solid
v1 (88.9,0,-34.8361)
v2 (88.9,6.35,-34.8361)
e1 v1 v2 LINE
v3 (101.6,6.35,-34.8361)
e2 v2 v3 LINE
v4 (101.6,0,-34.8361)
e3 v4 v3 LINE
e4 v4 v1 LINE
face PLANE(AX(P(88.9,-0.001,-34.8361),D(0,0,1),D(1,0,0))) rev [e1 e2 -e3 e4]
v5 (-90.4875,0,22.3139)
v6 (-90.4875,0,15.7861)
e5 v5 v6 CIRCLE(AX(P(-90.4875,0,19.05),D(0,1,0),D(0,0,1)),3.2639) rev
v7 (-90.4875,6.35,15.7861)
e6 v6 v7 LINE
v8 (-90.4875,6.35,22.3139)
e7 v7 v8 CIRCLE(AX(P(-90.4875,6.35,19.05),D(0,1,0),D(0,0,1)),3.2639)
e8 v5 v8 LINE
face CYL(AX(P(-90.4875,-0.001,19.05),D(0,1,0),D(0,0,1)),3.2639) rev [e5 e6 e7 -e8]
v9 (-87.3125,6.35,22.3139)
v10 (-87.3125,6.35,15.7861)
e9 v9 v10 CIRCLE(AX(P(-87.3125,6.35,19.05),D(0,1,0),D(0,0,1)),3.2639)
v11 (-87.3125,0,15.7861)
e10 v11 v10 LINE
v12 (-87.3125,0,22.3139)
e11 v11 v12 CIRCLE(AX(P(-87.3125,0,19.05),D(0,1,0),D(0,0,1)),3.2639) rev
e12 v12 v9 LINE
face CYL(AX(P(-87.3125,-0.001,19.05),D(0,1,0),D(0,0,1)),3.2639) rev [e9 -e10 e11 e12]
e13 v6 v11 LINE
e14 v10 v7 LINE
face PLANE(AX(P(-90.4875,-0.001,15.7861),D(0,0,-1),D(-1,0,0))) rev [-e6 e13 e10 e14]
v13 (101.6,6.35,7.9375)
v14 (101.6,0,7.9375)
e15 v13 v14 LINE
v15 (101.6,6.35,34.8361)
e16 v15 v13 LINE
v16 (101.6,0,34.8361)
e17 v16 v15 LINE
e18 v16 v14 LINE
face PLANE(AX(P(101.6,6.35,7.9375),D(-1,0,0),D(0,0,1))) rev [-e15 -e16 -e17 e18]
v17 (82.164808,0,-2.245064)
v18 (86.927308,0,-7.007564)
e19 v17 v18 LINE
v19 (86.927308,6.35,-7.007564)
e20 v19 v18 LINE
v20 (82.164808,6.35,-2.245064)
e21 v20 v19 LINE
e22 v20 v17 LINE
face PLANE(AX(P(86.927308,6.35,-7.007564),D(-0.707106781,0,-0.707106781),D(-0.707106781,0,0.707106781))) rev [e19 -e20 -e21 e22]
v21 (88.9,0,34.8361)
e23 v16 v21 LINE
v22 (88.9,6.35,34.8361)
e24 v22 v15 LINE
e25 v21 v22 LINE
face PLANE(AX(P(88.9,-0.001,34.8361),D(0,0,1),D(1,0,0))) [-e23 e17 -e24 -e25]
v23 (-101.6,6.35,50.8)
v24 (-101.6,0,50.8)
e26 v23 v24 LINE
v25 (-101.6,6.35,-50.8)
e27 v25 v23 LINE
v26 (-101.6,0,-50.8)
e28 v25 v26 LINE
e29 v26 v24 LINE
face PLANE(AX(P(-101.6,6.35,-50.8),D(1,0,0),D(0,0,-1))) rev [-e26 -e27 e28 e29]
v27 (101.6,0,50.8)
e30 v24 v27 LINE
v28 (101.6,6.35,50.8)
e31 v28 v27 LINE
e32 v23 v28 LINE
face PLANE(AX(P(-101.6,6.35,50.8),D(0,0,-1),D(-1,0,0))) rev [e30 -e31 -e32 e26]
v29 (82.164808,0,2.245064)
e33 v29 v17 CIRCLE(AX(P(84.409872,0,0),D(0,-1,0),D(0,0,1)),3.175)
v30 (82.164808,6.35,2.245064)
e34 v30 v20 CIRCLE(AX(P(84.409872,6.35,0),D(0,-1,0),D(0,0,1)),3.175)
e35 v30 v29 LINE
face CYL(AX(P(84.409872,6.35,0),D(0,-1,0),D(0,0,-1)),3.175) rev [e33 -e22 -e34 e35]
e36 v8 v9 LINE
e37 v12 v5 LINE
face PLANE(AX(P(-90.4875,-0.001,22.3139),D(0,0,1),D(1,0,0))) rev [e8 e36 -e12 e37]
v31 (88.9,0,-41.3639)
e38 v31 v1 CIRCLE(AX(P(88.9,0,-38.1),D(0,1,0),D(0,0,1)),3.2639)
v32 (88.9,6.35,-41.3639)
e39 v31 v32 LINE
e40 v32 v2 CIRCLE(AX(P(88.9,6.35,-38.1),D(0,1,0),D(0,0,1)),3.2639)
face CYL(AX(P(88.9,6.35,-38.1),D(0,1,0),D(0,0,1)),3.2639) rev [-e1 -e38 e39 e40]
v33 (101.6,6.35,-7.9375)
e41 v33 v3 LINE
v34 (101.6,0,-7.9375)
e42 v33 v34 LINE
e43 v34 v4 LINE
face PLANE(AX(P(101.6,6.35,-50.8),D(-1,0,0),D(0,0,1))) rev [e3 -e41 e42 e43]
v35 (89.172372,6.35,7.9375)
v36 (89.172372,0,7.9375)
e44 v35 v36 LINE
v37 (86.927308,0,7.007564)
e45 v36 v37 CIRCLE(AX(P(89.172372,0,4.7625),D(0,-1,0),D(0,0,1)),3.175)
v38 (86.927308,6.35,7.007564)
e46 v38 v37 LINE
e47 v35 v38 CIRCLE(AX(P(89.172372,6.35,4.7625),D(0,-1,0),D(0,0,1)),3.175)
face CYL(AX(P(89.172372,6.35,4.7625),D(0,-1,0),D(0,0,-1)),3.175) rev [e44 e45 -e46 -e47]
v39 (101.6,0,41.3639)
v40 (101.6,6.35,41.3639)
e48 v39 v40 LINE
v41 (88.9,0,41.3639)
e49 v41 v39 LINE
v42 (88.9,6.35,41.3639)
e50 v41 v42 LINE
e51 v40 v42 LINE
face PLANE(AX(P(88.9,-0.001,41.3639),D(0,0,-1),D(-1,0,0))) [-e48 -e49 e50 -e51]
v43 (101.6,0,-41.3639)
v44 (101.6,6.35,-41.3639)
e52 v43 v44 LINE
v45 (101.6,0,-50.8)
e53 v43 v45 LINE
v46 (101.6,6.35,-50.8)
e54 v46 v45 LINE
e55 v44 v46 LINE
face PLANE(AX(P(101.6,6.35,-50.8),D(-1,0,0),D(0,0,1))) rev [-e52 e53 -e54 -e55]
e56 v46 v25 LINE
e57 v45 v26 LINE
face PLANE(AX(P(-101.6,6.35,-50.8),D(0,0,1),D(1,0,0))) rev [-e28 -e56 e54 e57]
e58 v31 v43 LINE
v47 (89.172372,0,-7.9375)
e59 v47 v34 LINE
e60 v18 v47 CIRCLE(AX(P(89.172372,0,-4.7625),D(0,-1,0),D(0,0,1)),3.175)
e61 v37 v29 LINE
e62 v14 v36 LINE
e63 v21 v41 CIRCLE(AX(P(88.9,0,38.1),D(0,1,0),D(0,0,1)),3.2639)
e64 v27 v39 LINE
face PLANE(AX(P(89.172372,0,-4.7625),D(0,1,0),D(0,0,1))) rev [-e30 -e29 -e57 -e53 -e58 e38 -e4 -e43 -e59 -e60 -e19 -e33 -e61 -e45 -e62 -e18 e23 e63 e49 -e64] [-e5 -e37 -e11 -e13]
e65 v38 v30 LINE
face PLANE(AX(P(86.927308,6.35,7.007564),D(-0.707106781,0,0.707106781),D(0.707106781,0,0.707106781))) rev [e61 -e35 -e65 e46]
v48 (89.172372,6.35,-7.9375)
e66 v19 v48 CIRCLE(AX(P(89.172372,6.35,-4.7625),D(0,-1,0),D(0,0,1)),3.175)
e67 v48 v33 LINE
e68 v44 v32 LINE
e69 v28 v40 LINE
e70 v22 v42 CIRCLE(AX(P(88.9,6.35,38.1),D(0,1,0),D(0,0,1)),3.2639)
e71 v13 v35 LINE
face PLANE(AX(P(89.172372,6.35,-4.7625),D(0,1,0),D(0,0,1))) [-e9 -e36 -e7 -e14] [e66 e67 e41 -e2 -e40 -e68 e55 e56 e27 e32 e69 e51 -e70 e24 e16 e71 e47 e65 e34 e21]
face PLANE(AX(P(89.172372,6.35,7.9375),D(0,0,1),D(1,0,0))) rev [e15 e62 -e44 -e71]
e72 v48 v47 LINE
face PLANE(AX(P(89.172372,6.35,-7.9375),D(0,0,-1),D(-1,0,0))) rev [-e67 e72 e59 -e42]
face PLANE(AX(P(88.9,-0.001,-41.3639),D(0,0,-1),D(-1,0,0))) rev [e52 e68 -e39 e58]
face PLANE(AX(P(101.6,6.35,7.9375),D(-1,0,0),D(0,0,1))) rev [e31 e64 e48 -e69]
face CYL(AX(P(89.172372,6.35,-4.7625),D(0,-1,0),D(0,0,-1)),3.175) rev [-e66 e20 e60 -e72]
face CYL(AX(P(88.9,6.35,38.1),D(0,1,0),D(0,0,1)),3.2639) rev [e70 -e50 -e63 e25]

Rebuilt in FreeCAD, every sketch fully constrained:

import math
import FreeCAD as App
import Part
import Sketcher

V = App.Vector
Q = App.Units.Quantity

doc = App.newDocument("Part")
params = doc.addObject("Spreadsheet::Sheet", "Params")
for row, (alias, value) in enumerate([
    ("sketch1_width", "8 in"),
    ("sketch1_height", "4 in"),
    ("sketch1_radius", "0.125 in"),
    ("pad1_length", "0.25 in"),
    ("sketch2_diameter", "0.257 in"),
    ("hole_diameter", "0.257 in"),
    ("hole_depth", "0.25 in"),
    ("sketch3_width", "0.5 in"),
    ("pocket1_length", "0.25 in"),
    ("sketch4_width", "0.125 in"),
    ("pocket2_length", "0.25 in"),
], start=1):
    params.set(f"A{row}", alias)
    params.set(f"B{row}", "=" + value)
    params.setAlias(f"B{row}", alias)

body = doc.addObject("PartDesign::Body", "Body")

# Sketch on XZ plane
sketch1 = doc.addObject("Sketcher::SketchObject", "Sketch")
body.addObject(sketch1)
sketch1.AttachmentSupport = (doc.XZ_Plane, [""])
sketch1.MapMode = "FlatFace"
sketch1.addGeometry(Part.LineSegment(V(101.6, -50.8, 0), V(-101.6, -50.8, 0)), False)
sketch1.addGeometry(Part.LineSegment(V(-101.6, -50.8, 0), V(-101.6, 50.8, 0)), False)
sketch1.addGeometry(Part.LineSegment(V(-101.6, 50.8, 0), V(101.6, 50.8, 0)), False)
sketch1.addGeometry(Part.LineSegment(V(101.6, 50.8, 0), V(101.6, 7.9375, 0)), False)
sketch1.addGeometry(Part.LineSegment(V(101.6, 7.9375, 0), V(89.172372, 7.9375, 0)), False)
sketch1.addGeometry(Part.ArcOfCircle(Part.Circle(V(89.172372, 4.7625, 0), V(0, 0, 1), 3.175), math.radians(90), math.radians(135)), False)
sketch1.addGeometry(Part.LineSegment(V(86.927308, 7.007564, 0), V(82.164808, 2.245064, 0)), False)
sketch1.addGeometry(Part.ArcOfCircle(Part.Circle(V(84.409872, 0, 0), V(0, 0, 1), 3.175), math.radians(135), math.radians(225)), False)
sketch1.addGeometry(Part.LineSegment(V(82.164808, -2.245064, 0), V(86.927308, -7.007564, 0)), False)
sketch1.addGeometry(Part.ArcOfCircle(Part.Circle(V(89.172372, -4.7625, 0), V(0, 0, 1), 3.175), math.radians(-135), math.radians(-90)), False)
sketch1.addGeometry(Part.LineSegment(V(89.172372, -7.9375, 0), V(101.6, -7.9375, 0)), False)
sketch1.addGeometry(Part.LineSegment(V(101.6, -7.9375, 0), V(101.6, -50.8, 0)), False)
sketch1.addConstraint(Sketcher.Constraint("Coincident", 0, 2, 1, 1))
sketch1.addConstraint(Sketcher.Constraint("Coincident", 1, 2, 2, 1))
sketch1.addConstraint(Sketcher.Constraint("Coincident", 2, 2, 3, 1))
sketch1.addConstraint(Sketcher.Constraint("Coincident", 3, 2, 4, 1))
sketch1.addConstraint(Sketcher.Constraint("Tangent", 4, 2, 5, 1))
sketch1.addConstraint(Sketcher.Constraint("Tangent", 5, 2, 6, 1))
sketch1.addConstraint(Sketcher.Constraint("Tangent", 6, 2, 7, 1))
sketch1.addConstraint(Sketcher.Constraint("Tangent", 7, 2, 8, 1))
sketch1.addConstraint(Sketcher.Constraint("Tangent", 8, 2, 9, 1))
sketch1.addConstraint(Sketcher.Constraint("Tangent", 9, 2, 10, 1))
sketch1.addConstraint(Sketcher.Constraint("Coincident", 10, 2, 11, 1))
sketch1.addConstraint(Sketcher.Constraint("Coincident", 11, 2, 0, 1))
sketch1.addConstraint(Sketcher.Constraint("Horizontal", 0))
sketch1.addConstraint(Sketcher.Constraint("Vertical", 1))
sketch1.addConstraint(Sketcher.Constraint("Horizontal", 2))
sketch1.addConstraint(Sketcher.Constraint("Vertical", 3))
sketch1.addConstraint(Sketcher.Constraint("Horizontal", 4))
sketch1.addConstraint(Sketcher.Constraint("Horizontal", 10))
sketch1.addConstraint(Sketcher.Constraint("Vertical", 11))
sketch1.addConstraint(Sketcher.Constraint("Equal", 5, 7))
sketch1.addConstraint(Sketcher.Constraint("Equal", 7, 9))
sketch1.addConstraint(Sketcher.Constraint("Symmetric", 0, 2, 2, 2, -1, 1))
sketch1.addConstraint(Sketcher.Constraint("Symmetric", 5, 3, 9, 3, -1))
sketch1.addConstraint(Sketcher.Constraint("PointOnObject", 7, 3, -1))
sketch1.addConstraint(Sketcher.Constraint("Perpendicular", 6, 8))
sketch1.addConstraint(Sketcher.Constraint("Vertical", 3, 2, 10, 2))
sketch1.addConstraint(Sketcher.Constraint("DistanceX", 0, 2, 0, 1, Q("8 in")))
sketch1.addConstraint(Sketcher.Constraint("DistanceY", 1, 1, 1, 2, Q("4 in")))
sketch1.addConstraint(Sketcher.Constraint("Radius", 5, Q("0.125 in")))
sketch1.addConstraint(Sketcher.Constraint("DistanceY", 9, 3, 3, 2, Q("0.5 in")))
sketch1.addConstraint(Sketcher.Constraint("DistanceX", 4, 2, 4, 1, Q("12.427628 mm")))
sketch1.setExpression("Constraints[26]", "Params.sketch1_width")
sketch1.setExpression("Constraints[27]", "Params.sketch1_height")
sketch1.setExpression("Constraints[28]", "Params.sketch1_radius")
pad1 = doc.addObject("PartDesign::Pad", "Pad")
body.addObject(pad1)
pad1.Profile = sketch1
pad1.setExpression("Length", "Params.pad1_length")
pad1.Reversed = True

# Sketch on XZ plane
sketch2 = doc.addObject("Sketcher::SketchObject", "Sketch001")
body.addObject(sketch2)
sketch2.AttachmentSupport = (doc.XZ_Plane, [""])
sketch2.MapMode = "FlatFace"
sketch2.AttachmentOffset = App.Placement(V(0, 0, -0.25 * 25.4), App.Rotation())
sketch2.addGeometry(Part.Circle(V(88.9, 38.1, 0), V(0, 0, 1), 3.2639), False)
sketch2.addGeometry(Part.Circle(V(88.9, -38.1, 0), V(0, 0, 1), 3.2639), False)
sketch2.addGeometry(Part.Circle(V(-88.9, 19.05, 0), V(0, 0, 1), 3.2639), False)
sketch2.addConstraint(Sketcher.Constraint("Equal", 0, 1))
sketch2.addConstraint(Sketcher.Constraint("Equal", 1, 2))
sketch2.addConstraint(Sketcher.Constraint("Symmetric", 0, 3, 1, 3, -1))
sketch2.addConstraint(Sketcher.Constraint("Diameter", 0, Q("0.257 in")))
sketch2.addConstraint(Sketcher.Constraint("DistanceY", 1, 3, 0, 3, Q("3 in")))
sketch2.addConstraint(Sketcher.Constraint("DistanceX", 2, 3, 0, 3, Q("7 in")))
sketch2.addConstraint(Sketcher.Constraint("DistanceX", -1, 1, 0, 3, Q("3.5 in")))
sketch2.addConstraint(Sketcher.Constraint("DistanceY", -1, 1, 2, 3, Q("0.75 in")))
sketch2.setExpression("Constraints[3]", "Params.sketch2_diameter")
doc.recompute()
hole = doc.addObject("PartDesign::Hole", "Hole")
body.addObject(hole)
hole.Profile = sketch2
hole.ThreadType = "None"
hole.setExpression("Diameter", "Params.hole_diameter")
hole.DepthType = "Dimension"
hole.setExpression("Depth", "Params.hole_depth")
hole.DrillPoint = "Flat"
hole.Reversed = True

# Sketch on XZ plane
sketch3 = doc.addObject("Sketcher::SketchObject", "Sketch002")
body.addObject(sketch3)
sketch3.AttachmentSupport = (doc.XZ_Plane, [""])
sketch3.MapMode = "FlatFace"
sketch3.AttachmentOffset = App.Placement(V(0, 0, -0.25 * 25.4), App.Rotation())
sketch3.addGeometry(Part.LineSegment(V(101.6, -41.3639, 0), V(88.9, -41.3639, 0)), False)
sketch3.addGeometry(Part.ArcOfCircle(Part.Circle(V(88.9, -38.1, 0), V(0, 0, 1), 3.2639), math.radians(90), math.radians(270)), False)
sketch3.addGeometry(Part.LineSegment(V(88.9, -34.8361, 0), V(101.6, -34.8361, 0)), False)
sketch3.addGeometry(Part.LineSegment(V(101.6, -34.8361, 0), V(101.6, -41.3639, 0)), False)
sketch3.addConstraint(Sketcher.Constraint("Tangent", 0, 2, 1, 2))
sketch3.addConstraint(Sketcher.Constraint("Tangent", 1, 1, 2, 1))
sketch3.addConstraint(Sketcher.Constraint("Coincident", 2, 2, 3, 1))
sketch3.addConstraint(Sketcher.Constraint("Coincident", 3, 2, 0, 1))
sketch3.addConstraint(Sketcher.Constraint("Horizontal", 0))
sketch3.addConstraint(Sketcher.Constraint("Horizontal", 2))
sketch3.addConstraint(Sketcher.Constraint("Vertical", 3))
sketch3.addConstraint(Sketcher.Constraint("DistanceX", 0, 2, 0, 1, Q("0.5 in")))
sketch3.addConstraint(Sketcher.Constraint("DistanceX", -1, 1, 2, 2, Q("4 in")))
sketch3.addConstraint(Sketcher.Constraint("DistanceY", 1, 3, -1, 1, Q("1.5 in")))
sketch3.addConstraint(Sketcher.Constraint("Radius", 1, Q("0.1285 in")))
sketch3.setExpression("Constraints[7]", "Params.sketch3_width")
pocket1 = doc.addObject("PartDesign::Pocket", "Pocket")
body.addObject(pocket1)
pocket1.Profile = sketch3
pocket1.setExpression("Length", "Params.pocket1_length")
pocket1.Reversed = True
doc.recompute()

mirrored = doc.addObject("PartDesign::Mirrored", "Mirrored")
body.addObject(mirrored)
mirrored.Originals = [pocket1]
mirrored.MirrorPlane = (doc.XY_Plane, [""])
body.Tip = mirrored

# Sketch on XZ plane
sketch4 = doc.addObject("Sketcher::SketchObject", "Sketch003")
body.addObject(sketch4)
sketch4.AttachmentSupport = (doc.XZ_Plane, [""])
sketch4.MapMode = "FlatFace"
sketch4.addGeometry(Part.LineSegment(V(-87.3125, 15.7861, 0), V(-90.4875, 15.7861, 0)), False)
sketch4.addGeometry(Part.ArcOfCircle(Part.Circle(V(-90.4875, 19.05, 0), V(0, 0, 1), 3.2639), math.radians(90), math.radians(270)), False)
sketch4.addGeometry(Part.LineSegment(V(-90.4875, 22.3139, 0), V(-87.3125, 22.3139, 0)), False)
sketch4.addGeometry(Part.ArcOfCircle(Part.Circle(V(-87.3125, 19.05, 0), V(0, 0, 1), 3.2639), math.radians(-90), math.radians(90)), False)
sketch4.addConstraint(Sketcher.Constraint("Tangent", 0, 2, 1, 2))
sketch4.addConstraint(Sketcher.Constraint("Tangent", 1, 1, 2, 1))
sketch4.addConstraint(Sketcher.Constraint("Tangent", 2, 2, 3, 2))
sketch4.addConstraint(Sketcher.Constraint("Tangent", 3, 1, 0, 1))
sketch4.addConstraint(Sketcher.Constraint("Horizontal", 0))
sketch4.addConstraint(Sketcher.Constraint("Horizontal", 2))
sketch4.addConstraint(Sketcher.Constraint("Radius", 1, Q("0.1285 in")))
sketch4.addConstraint(Sketcher.Constraint("DistanceX", 0, 2, 0, 1, Q("0.125 in")))
sketch4.addConstraint(Sketcher.Constraint("DistanceY", -1, 1, 1, 3, Q("0.75 in")))
sketch4.addConstraint(Sketcher.Constraint("DistanceX", 1, 3, -1, 1, Q("3.5625 in")))
sketch4.setExpression("Constraints[7]", "Params.sketch4_width")
pocket2 = doc.addObject("PartDesign::Pocket", "Pocket001")
body.addObject(pocket2)
pocket2.Profile = sketch4
pocket2.setExpression("Length", "Params.pocket2_length")

doc.recompute()
